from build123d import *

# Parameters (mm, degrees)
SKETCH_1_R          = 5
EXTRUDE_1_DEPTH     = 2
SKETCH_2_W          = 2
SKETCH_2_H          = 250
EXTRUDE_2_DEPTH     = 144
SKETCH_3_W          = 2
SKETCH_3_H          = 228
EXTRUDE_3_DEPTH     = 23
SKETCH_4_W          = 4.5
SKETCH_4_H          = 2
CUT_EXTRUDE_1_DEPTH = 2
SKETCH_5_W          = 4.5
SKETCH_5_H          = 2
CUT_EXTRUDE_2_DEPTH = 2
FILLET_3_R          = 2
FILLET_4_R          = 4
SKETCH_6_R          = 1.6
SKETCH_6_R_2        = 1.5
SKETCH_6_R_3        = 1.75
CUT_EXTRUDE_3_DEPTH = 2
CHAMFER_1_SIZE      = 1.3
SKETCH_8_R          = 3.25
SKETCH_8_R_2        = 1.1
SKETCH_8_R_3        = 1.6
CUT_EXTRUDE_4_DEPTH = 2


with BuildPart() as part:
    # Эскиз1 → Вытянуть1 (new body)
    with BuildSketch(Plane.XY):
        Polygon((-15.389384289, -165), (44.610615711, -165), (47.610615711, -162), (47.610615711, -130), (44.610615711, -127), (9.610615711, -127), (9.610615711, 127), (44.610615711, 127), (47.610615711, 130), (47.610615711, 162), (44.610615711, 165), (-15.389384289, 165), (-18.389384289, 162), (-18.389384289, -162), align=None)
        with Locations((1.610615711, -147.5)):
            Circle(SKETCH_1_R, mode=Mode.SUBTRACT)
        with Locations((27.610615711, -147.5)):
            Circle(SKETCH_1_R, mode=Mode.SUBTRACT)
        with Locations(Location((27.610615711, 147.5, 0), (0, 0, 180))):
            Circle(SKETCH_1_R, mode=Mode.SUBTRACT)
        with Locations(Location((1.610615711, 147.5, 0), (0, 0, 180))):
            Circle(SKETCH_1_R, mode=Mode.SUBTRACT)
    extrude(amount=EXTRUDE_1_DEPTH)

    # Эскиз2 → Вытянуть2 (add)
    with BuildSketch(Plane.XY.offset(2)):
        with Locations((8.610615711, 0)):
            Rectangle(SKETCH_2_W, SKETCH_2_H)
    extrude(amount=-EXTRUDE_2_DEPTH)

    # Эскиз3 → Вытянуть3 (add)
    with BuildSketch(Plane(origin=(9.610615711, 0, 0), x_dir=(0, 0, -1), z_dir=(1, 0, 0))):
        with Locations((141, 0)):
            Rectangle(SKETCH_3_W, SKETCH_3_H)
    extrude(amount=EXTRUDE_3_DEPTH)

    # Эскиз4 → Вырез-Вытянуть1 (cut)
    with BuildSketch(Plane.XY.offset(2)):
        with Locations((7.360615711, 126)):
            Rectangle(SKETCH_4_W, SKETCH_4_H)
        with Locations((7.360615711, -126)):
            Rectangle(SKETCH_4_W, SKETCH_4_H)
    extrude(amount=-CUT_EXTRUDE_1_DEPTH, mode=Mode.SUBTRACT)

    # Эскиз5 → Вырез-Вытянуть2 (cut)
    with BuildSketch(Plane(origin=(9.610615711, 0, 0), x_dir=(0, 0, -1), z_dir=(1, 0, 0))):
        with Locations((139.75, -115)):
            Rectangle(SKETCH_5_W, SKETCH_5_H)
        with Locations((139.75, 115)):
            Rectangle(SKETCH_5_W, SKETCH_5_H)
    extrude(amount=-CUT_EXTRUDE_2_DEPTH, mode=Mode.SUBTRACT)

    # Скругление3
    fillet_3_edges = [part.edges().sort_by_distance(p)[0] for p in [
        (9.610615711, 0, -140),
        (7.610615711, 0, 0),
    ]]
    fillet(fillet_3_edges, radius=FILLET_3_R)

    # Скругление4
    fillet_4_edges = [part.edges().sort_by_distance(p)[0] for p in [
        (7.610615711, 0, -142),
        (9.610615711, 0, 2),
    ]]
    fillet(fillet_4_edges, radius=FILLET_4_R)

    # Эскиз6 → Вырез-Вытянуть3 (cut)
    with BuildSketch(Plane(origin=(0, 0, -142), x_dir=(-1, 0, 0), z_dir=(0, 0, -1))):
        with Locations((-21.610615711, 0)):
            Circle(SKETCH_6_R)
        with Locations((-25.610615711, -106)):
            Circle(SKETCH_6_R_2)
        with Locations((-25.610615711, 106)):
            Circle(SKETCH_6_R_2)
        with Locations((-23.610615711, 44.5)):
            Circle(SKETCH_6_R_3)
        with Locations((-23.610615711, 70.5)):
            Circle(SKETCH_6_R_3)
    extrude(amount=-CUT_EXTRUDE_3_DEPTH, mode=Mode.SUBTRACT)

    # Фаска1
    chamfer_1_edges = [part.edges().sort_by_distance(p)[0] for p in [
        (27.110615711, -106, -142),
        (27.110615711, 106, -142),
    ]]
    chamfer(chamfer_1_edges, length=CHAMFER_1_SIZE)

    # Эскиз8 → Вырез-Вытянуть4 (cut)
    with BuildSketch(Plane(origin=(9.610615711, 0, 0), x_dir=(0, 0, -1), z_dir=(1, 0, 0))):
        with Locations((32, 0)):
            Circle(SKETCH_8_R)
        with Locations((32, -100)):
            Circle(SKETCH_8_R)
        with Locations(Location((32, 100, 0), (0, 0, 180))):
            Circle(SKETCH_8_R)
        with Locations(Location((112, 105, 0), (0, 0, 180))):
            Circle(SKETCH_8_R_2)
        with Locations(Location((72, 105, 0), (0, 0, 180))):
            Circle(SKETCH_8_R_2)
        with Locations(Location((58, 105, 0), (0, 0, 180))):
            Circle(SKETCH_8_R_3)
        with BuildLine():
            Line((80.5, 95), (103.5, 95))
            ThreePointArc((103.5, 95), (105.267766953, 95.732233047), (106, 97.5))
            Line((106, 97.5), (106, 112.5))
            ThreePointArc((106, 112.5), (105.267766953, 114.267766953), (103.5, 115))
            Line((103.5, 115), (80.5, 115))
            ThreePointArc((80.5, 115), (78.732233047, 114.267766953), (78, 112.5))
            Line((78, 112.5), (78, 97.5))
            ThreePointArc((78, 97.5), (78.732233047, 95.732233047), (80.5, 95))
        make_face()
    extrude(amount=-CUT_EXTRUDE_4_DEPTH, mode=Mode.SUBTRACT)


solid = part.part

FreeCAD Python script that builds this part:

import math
import FreeCAD as App
import Part
import Sketcher
from FreeCAD import Vector
Q = App.Units.Quantity


def edges_at(feature, points):
    """Names of the edges that pass closest to the given points."""
    edges = feature.Shape.Edges
    near = lambda p: min(range(len(edges)), key=lambda i: edges[i].distToShape(Part.Vertex(*p))[0])
    return sorted({f"Edge{near(p) + 1}" for p in points})


def add_polygon(sketch, points):
    """Adds a closed chain of lines whose ends are joined by coincident constraints."""
    first, n = sketch.GeometryCount, len(points)
    for a, b in zip(points, points[1:] + points[:1]):
        sketch.addGeometry(Part.LineSegment(App.Vector(*a, 0), App.Vector(*b, 0)), False)
    for i in range(n):
        sketch.addConstraint(Sketcher.Constraint("Coincident", first + i, 2, first + (i + 1) % n, 1))

doc = App.newDocument("Part")
body = doc.addObject("PartDesign::Body", "Body")

# Sketch on XY plane
sketch1 = body.newObject("Sketcher::SketchObject", "Sketch")
sketch1.AttachmentSupport = (doc.getObject("XY_Plane"), [""])
sketch1.MapMode = "FlatFace"
add_polygon(sketch1, [(-15.4, -165), (44.6, -165), (47.6, -162), (47.6, -130), (44.6, -127), (9.6, -127), (9.6, 127), (44.6, 127), (47.6, 130), (47.6, 162), (44.6, 165), (-15.4, 165), (-18.4, 162), (-18.4, -162)])  # lines 0-13
sketch1.addGeometry(Part.Circle(Vector(1.6, -147.5, 0), Vector(0, 0, 1), 5), False)  # 14
sketch1.addGeometry(Part.Circle(Vector(27.6, -147.5, 0), Vector(0, 0, 1), 5), False)  # 15
sketch1.addGeometry(Part.Circle(Vector(1.6, 147.5, 0), Vector(0, 0, 1), 5), False)  # 16
sketch1.addGeometry(Part.Circle(Vector(27.6, 147.5, 0), Vector(0, 0, 1), 5), False)  # 17
sketch1.addConstraint(Sketcher.Constraint("Horizontal", 0))
sketch1.addConstraint(Sketcher.Constraint("Vertical", 2))
sketch1.addConstraint(Sketcher.Constraint("Horizontal", 4))
sketch1.addConstraint(Sketcher.Constraint("Vertical", 5))
sketch1.addConstraint(Sketcher.Constraint("Horizontal", 6))
sketch1.addConstraint(Sketcher.Constraint("Vertical", 8))
sketch1.addConstraint(Sketcher.Constraint("Horizontal", 10))
sketch1.addConstraint(Sketcher.Constraint("Vertical", 12))
sketch1.addConstraint(Sketcher.Constraint("Equal", 14, 15))
sketch1.addConstraint(Sketcher.Constraint("Equal", 15, 16))
sketch1.addConstraint(Sketcher.Constraint("Equal", 16, 17))
sketch1.addConstraint(Sketcher.Constraint("Symmetric", 14, 3, 16, 3, -1))
sketch1.addConstraint(Sketcher.Constraint("Symmetric", 15, 3, 17, 3, -1))
sketch1.addConstraint(Sketcher.Constraint("Symmetric", 3, 2, 6, 2, -1))
sketch1.addConstraint(Sketcher.Constraint("Symmetric", 2, 2, 7, 2, -1))
sketch1.addConstraint(Sketcher.Constraint("Symmetric", 0, 2, 9, 2, -1))
sketch1.addConstraint(Sketcher.Constraint("Perpendicular", 1, 3))
sketch1.addConstraint(Sketcher.Constraint("Perpendicular", 3, 7))
sketch1.addConstraint(Sketcher.Constraint("Perpendicular", 7, 9))
sketch1.addConstraint(Sketcher.Constraint("Perpendicular", 9, 11))
sketch1.addConstraint(Sketcher.Constraint("Perpendicular", 11, 13))
sketch1.addConstraint(Sketcher.Constraint("Horizontal", 14, 3, 15, 3))
sketch1.addConstraint(Sketcher.Constraint("Horizontal", 8, 2, 11, 2))
sketch1.addConstraint(Sketcher.Constraint("Horizontal", 1, 2, 12, 2))
sketch1.addConstraint(Sketcher.Constraint("Vertical", 0, 2, 3, 2))
sketch1.addConstraint(Sketcher.Constraint("Diameter", 14, Q("10 mm")))
sketch1.addConstraint(Sketcher.Constraint("DistanceX", 0, 1, 0, 2, Q("60 mm")))
sketch1.addConstraint(Sketcher.Constraint("DistanceX", 4, 2, 4, 1, Q("35 mm")))
sketch1.addConstraint(Sketcher.Constraint("DistanceY", 2, 1, 2, 2, Q("32 mm")))
sketch1.addConstraint(Sketcher.Constraint("DistanceY", 5, 1, 5, 2, Q("254 mm")))
sketch1.addConstraint(Sketcher.Constraint("DistanceY", 12, 2, 12, 1, Q("324 mm")))
sketch1.addConstraint(Sketcher.Constraint("DistanceX", 14, 3, 15, 3, Q("26 mm")))
sketch1.addConstraint(Sketcher.Constraint("DistanceY", 14, 3, 16, 3, Q("295 mm")))
sketch1.addConstraint(Sketcher.Constraint("DistanceX", 15, 3, 0, 2, Q("17 mm")))
sketch1.addConstraint(Sketcher.Constraint("DistanceX", -1, 1, 14, 3, Q("1.610616 mm")))
pad1 = body.newObject("PartDesign::Pad", "Pad")
pad1.Profile = sketch1
pad1.Length = 2

# Sketch on XY plane
sketch2 = body.newObject("Sketcher::SketchObject", "Sketch001")
sketch2.AttachmentSupport = (doc.getObject("XY_Plane"), [""])
sketch2.MapMode = "FlatFace"
sketch2.AttachmentOffset = App.Placement(Vector(0, 0, 2), App.Rotation())
add_polygon(sketch2, [(7.6, 125), (7.6, -125), (9.6, -125), (9.6, 125)])  # lines 0-3
sketch2.addConstraint(Sketcher.Constraint("Vertical", 0))
sketch2.addConstraint(Sketcher.Constraint("Horizontal", 1))
sketch2.addConstraint(Sketcher.Constraint("Vertical", 2))
sketch2.addConstraint(Sketcher.Constraint("Horizontal", 3))
sketch2.addConstraint(Sketcher.Constraint("DistanceX", 1, 1, 1, 2, Q("2 mm")))
sketch2.addConstraint(Sketcher.Constraint("DistanceY", 0, 2, 0, 1, Q("250 mm")))
sketch2.addConstraint(Sketcher.Constraint("DistanceY", 0, 2, -1, 1, Q("125 mm")))
sketch2.addConstraint(Sketcher.Constraint("DistanceX", -1, 1, 0, 2, Q("7.610616 mm")))
pad2 = body.newObject("PartDesign::Pad", "Pad001")
pad2.Profile = sketch2
pad2.Length = 144
pad2.Reversed = True

# Sketch on YZ plane
sketch3 = body.newObject("Sketcher::SketchObject", "Sketch002")
sketch3.AttachmentSupport = (doc.getObject("YZ_Plane"), [""])
sketch3.MapMode = "FlatFace"
sketch3.AttachmentOffset = App.Placement(Vector(0, 0, 9.610616), App.Rotation())
add_polygon(sketch3, [(114, -140), (-114, -140), (-114, -142), (114, -142)])  # lines 0-3
sketch3.addConstraint(Sketcher.Constraint("Horizontal", 0))
sketch3.addConstraint(Sketcher.Constraint("Vertical", 1))
sketch3.addConstraint(Sketcher.Constraint("Horizontal", 2))
sketch3.addConstraint(Sketcher.Constraint("Vertical", 3))
sketch3.addConstraint(Sketcher.Constraint("DistanceX", 0, 2, 0, 1, Q("228 mm")))
sketch3.addConstraint(Sketcher.Constraint("DistanceY", 1, 2, 1, 1, Q("2 mm")))
sketch3.addConstraint(Sketcher.Constraint("DistanceX", 0, 2, -1, 1, Q("114 mm")))
sketch3.addConstraint(Sketcher.Constraint("DistanceY", 0, 2, -1, 1, Q("140 mm")))
pad3 = body.newObject("PartDesign::Pad", "Pad002")
pad3.Profile = sketch3
pad3.Length = 23

# Sketch on XY plane
sketch4 = body.newObject("Sketcher::SketchObject", "Sketch003")
sketch4.AttachmentSupport = (doc.getObject("XY_Plane"), [""])
sketch4.MapMode = "FlatFace"
sketch4.AttachmentOffset = App.Placement(Vector(0, 0, 2), App.Rotation())
add_polygon(sketch4, [(5.1, 127), (5.1, 125), (9.6, 125), (9.6, 127)])  # lines 0-3
add_polygon(sketch4, [(5.1, -125), (5.1, -127), (9.6, -127), (9.6, -125)])  # lines 4-7
sketch4.addConstraint(Sketcher.Constraint("Vertical", 0))
sketch4.addConstraint(Sketcher.Constraint("Horizontal", 1))
sketch4.addConstraint(Sketcher.Constraint("Vertical", 2))
sketch4.addConstraint(Sketcher.Constraint("Horizontal", 3))
sketch4.addConstraint(Sketcher.Constraint("Vertical", 4))
sketch4.addConstraint(Sketcher.Constraint("Horizontal", 5))
sketch4.addConstraint(Sketcher.Constraint("Vertical", 6))
sketch4.addConstraint(Sketcher.Constraint("Horizontal", 7))
sketch4.addConstraint(Sketcher.Constraint("Symmetric", 3, 2, 4, 2, -1))
sketch4.addConstraint(Sketcher.Constraint("Symmetric", 1, 2, 6, 2, -1))
sketch4.addConstraint(Sketcher.Constraint("DistanceY", 0, 2, 0, 1, Q("2 mm")))
sketch4.addConstraint(Sketcher.Constraint("DistanceX", 1, 1, 1, 2, Q("4.5 mm")))
sketch4.addConstraint(Sketcher.Constraint("DistanceY", -1, 1, 0, 2, Q("125 mm")))
sketch4.addConstraint(Sketcher.Constraint("DistanceX", -1, 1, 0, 2, Q("5.110616 mm")))
pocket1 = body.newObject("PartDesign::Pocket", "Pocket")
pocket1.Profile = sketch4
pocket1.Length = 2

# Sketch on YZ plane
sketch5 = body.newObject("Sketcher::SketchObject", "Sketch004")
sketch5.AttachmentSupport = (doc.getObject("YZ_Plane"), [""])
sketch5.MapMode = "FlatFace"
sketch5.AttachmentOffset = App.Placement(Vector(0, 0, 9.610616), App.Rotation())
add_polygon(sketch5, [(-114, -137.5), (-116, -137.5), (-116, -142), (-114, -142)])  # lines 0-3
add_polygon(sketch5, [(116, -137.5), (114, -137.5), (114, -142), (116, -142)])  # lines 4-7
sketch5.addConstraint(Sketcher.Constraint("Horizontal", 0))
sketch5.addConstraint(Sketcher.Constraint("Vertical", 1))
sketch5.addConstraint(Sketcher.Constraint("Horizontal", 2))
sketch5.addConstraint(Sketcher.Constraint("Vertical", 3))
sketch5.addConstraint(Sketcher.Constraint("Horizontal", 4))
sketch5.addConstraint(Sketcher.Constraint("Vertical", 5))
sketch5.addConstraint(Sketcher.Constraint("Horizontal", 6))
sketch5.addConstraint(Sketcher.Constraint("Vertical", 7))
sketch5.addConstraint(Sketcher.Constraint("Symmetric", 3, 2, 4, 2, -2))
sketch5.addConstraint(Sketcher.Constraint("Symmetric", 1, 2, 6, 2, -2))
sketch5.addConstraint(Sketcher.Constraint("DistanceX", 0, 2, 0, 1, Q("2 mm")))
sketch5.addConstraint(Sketcher.Constraint("DistanceY", 1, 2, 1, 1, Q("4.5 mm")))
sketch5.addConstraint(Sketcher.Constraint("DistanceX", 0, 2, -1, 1, Q("116 mm")))
sketch5.addConstraint(Sketcher.Constraint("DistanceY", 1, 2, -1, 1, Q("142 mm")))
pocket2 = body.newObject("PartDesign::Pocket", "Pocket001")
pocket2.Profile = sketch5
pocket2.Length = 2
doc.recompute()

fillet = body.newObject("PartDesign::Fillet", "Fillet")
fillet.Base = (pocket2, edges_at(pocket2, [(9.611, 0, -140), (7.611, 0, 0)]))
fillet.Radius = 2
doc.recompute()

fillet2 = body.newObject("PartDesign::Fillet", "Fillet001")
fillet2.Base = (fillet, edges_at(fillet, [(7.611, 0, -142), (9.611, 0, 2)]))
fillet2.Radius = 4

# Sketch on XY plane
sketch6 = body.newObject("Sketcher::SketchObject", "Sketch005")
sketch6.AttachmentSupport = (doc.getObject("XY_Plane"), [""])
sketch6.MapMode = "FlatFace"
sketch6.AttachmentOffset = App.Placement(Vector(0, 0, -142), App.Rotation())
sketch6.addGeometry(Part.Circle(Vector(21.6, 0, 0), Vector(0, 0, 1), 1.6), False)
sketch6.addGeometry(Part.Circle(Vector(25.6, -106, 0), Vector(0, 0, 1), 1.5), False)
sketch6.addGeometry(Part.Circle(Vector(25.6, 106, 0), Vector(0, 0, 1), 1.5), False)
sketch6.addGeometry(Part.Circle(Vector(23.6, 44.5, 0), Vector(0, 0, 1), 1.8), False)
sketch6.addGeometry(Part.Circle(Vector(23.6, 70.5, 0), Vector(0, 0, 1), 1.8), False)
sketch6.addConstraint(Sketcher.Constraint("Equal", 1, 2))
sketch6.addConstraint(Sketcher.Constraint("Equal", 3, 4))
sketch6.addConstraint(Sketcher.Constraint("Symmetric", 1, 3, 2, 3, -1))
sketch6.addConstraint(Sketcher.Constraint("PointOnObject", 0, 3, -1))
sketch6.addConstraint(Sketcher.Constraint("Vertical", 3, 3, 4, 3))
sketch6.addConstraint(Sketcher.Constraint("Diameter", 1, Q("3 mm")))
sketch6.addConstraint(Sketcher.Constraint("Diameter", 0, Q("3.2 mm")))
sketch6.addConstraint(Sketcher.Constraint("Diameter", 3, Q("3.5 mm")))
sketch6.addConstraint(Sketcher.Constraint("DistanceY", 1, 3, -1, 1, Q("106 mm")))
sketch6.addConstraint(Sketcher.Constraint("DistanceX", 0, 3, 1, 3, Q("4 mm")))
sketch6.addConstraint(Sketcher.Constraint("DistanceX", 0, 3, 3, 3, Q("2 mm")))
sketch6.addConstraint(Sketcher.Constraint("DistanceY", 3, 3, 4, 3, Q("26 mm")))
sketch6.addConstraint(Sketcher.Constraint("DistanceY", -1, 1, 3, 3, Q("44.5 mm")))
sketch6.addConstraint(Sketcher.Constraint("DistanceX", -1, 1, 0, 3, Q("21.610616 mm")))
pocket3 = body.newObject("PartDesign::Pocket", "Pocket002")
pocket3.Profile = sketch6
pocket3.Length = 2
pocket3.Reversed = True
doc.recompute()

chamfer = body.newObject("PartDesign::Chamfer", "Chamfer")
chamfer.Base = (pocket3, edges_at(pocket3, [(27.111, -106, -142), (27.111, 106, -142)]))
chamfer.Size = 1.3

# Sketch on YZ plane
sketch7 = body.newObject("Sketcher::SketchObject", "Sketch006")
sketch7.AttachmentSupport = (doc.getObject("YZ_Plane"), [""])
sketch7.MapMode = "FlatFace"
sketch7.AttachmentOffset = App.Placement(Vector(0, 0, 9.610616), App.Rotation())
sketch7.addGeometry(Part.Circle(Vector(0, -32, 0), Vector(0, 0, 1), 3.2), False)
sketch7.addGeometry(Part.Circle(Vector(-100, -32, 0), Vector(0, 0, 1), 3.2), False)
sketch7.addGeometry(Part.Circle(Vector(100, -32, 0), Vector(0, 0, 1), 3.2), False)
sketch7.addGeometry(Part.Circle(Vector(105, -112, 0), Vector(0, 0, 1), 1.1), False)
sketch7.addGeometry(Part.Circle(Vector(105, -72, 0), Vector(0, 0, 1), 1.1), False)
sketch7.addGeometry(Part.Circle(Vector(105, -58, 0), Vector(0, 0, 1), 1.6), False)
sketch7.addGeometry(Part.LineSegment(Vector(95, -80.5, 0), Vector(95, -103.5, 0)), False)
sketch7.addGeometry(Part.ArcOfCircle(Part.Circle(Vector(97.5, -103.5, 0), Vector(0, 0, 1), 2.5), math.radians(180), math.radians(270)), False)
sketch7.addGeometry(Part.LineSegment(Vector(97.5, -106, 0), Vector(112.5, -106, 0)), False)
sketch7.addGeometry(Part.ArcOfCircle(Part.Circle(Vector(112.5, -103.5, 0), Vector(0, 0, 1), 2.5), math.radians(-90), math.radians(0)), False)
sketch7.addGeometry(Part.LineSegment(Vector(115, -103.5, 0), Vector(115, -80.5, 0)), False)
sketch7.addGeometry(Part.ArcOfCircle(Part.Circle(Vector(112.5, -80.5, 0), Vector(0, 0, 1), 2.5), math.radians(0), math.radians(90)), False)
sketch7.addGeometry(Part.LineSegment(Vector(112.5, -78, 0), Vector(97.5, -78, 0)), False)
sketch7.addGeometry(Part.ArcOfCircle(Part.Circle(Vector(97.5, -80.5, 0), Vector(0, 0, 1), 2.5), math.radians(90), math.radians(180)), False)
sketch7.addConstraint(Sketcher.Constraint("Tangent", 6, 2, 7, 1))
sketch7.addConstraint(Sketcher.Constraint("Tangent", 7, 2, 8, 1))
sketch7.addConstraint(Sketcher.Constraint("Tangent", 8, 2, 9, 1))
sketch7.addConstraint(Sketcher.Constraint("Tangent", 9, 2, 10, 1))
sketch7.addConstraint(Sketcher.Constraint("Tangent", 10, 2, 11, 1))
sketch7.addConstraint(Sketcher.Constraint("Tangent", 11, 2, 12, 1))
sketch7.addConstraint(Sketcher.Constraint("Tangent", 12, 2, 13, 1))
sketch7.addConstraint(Sketcher.Constraint("Tangent", 13, 2, 6, 1))
sketch7.addConstraint(Sketcher.Constraint("Vertical", 6))
sketch7.addConstraint(Sketcher.Constraint("Horizontal", 8))
sketch7.addConstraint(Sketcher.Constraint("Vertical", 10))
sketch7.addConstraint(Sketcher.Constraint("Horizontal", 12))
sketch7.addConstraint(Sketcher.Constraint("Equal", 0, 1))
sketch7.addConstraint(Sketcher.Constraint("Equal", 1, 2))
sketch7.addConstraint(Sketcher.Constraint("Equal", 3, 4))
sketch7.addConstraint(Sketcher.Constraint("Equal", 7, 9))
sketch7.addConstraint(Sketcher.Constraint("Equal", 9, 11))
sketch7.addConstraint(Sketcher.Constraint("Equal", 11, 13))
sketch7.addConstraint(Sketcher.Constraint("Symmetric", 1, 3, 2, 3, -2))
sketch7.addConstraint(Sketcher.Constraint("PointOnObject", 0, 3, -2))
sketch7.addConstraint(Sketcher.Constraint("Horizontal", 0, 3, 1, 3))
sketch7.addConstraint(Sketcher.Constraint("Vertical", 3, 3, 4, 3))
sketch7.addConstraint(Sketcher.Constraint("Vertical", 4, 3, 5, 3))
sketch7.addConstraint(Sketcher.Constraint("Diameter", 0, Q("6.5 mm")))
sketch7.addConstraint(Sketcher.Constraint("Diameter", 3, Q("2.2 mm")))
sketch7.addConstraint(Sketcher.Constraint("Diameter", 5, Q("3.2 mm")))
sketch7.addConstraint(Sketcher.Constraint("Radius", 7, Q("2.5 mm")))
sketch7.addConstraint(Sketcher.Constraint("DistanceX", 8, 1, 8, 2, Q("15 mm")))
sketch7.addConstraint(Sketcher.Constraint("DistanceY", 6, 2, 6, 1, Q("23 mm")))
sketch7.addConstraint(Sketcher.Constraint("DistanceY", 0, 3, -1, 1, Q("32 mm")))
sketch7.addConstraint(Sketcher.Constraint("DistanceX", 1, 3, -1, 1, Q("100 mm")))
sketch7.addConstraint(Sketcher.Constraint("DistanceX", -1, 1, 3, 3, Q("105 mm")))
sketch7.addConstraint(Sketcher.Constraint("DistanceY", 3, 3, -1, 1, Q("112 mm")))
sketch7.addConstraint(Sketcher.Constraint("DistanceY", 4, 3, -1, 1, Q("72 mm")))
sketch7.addConstraint(Sketcher.Constraint("DistanceY", 5, 3, -1, 1, Q("58 mm")))
sketch7.addConstraint(Sketcher.Constraint("DistanceX", -1, 1, 6, 2, Q("95 mm")))
sketch7.addConstraint(Sketcher.Constraint("DistanceY", 7, 2, -1, 1, Q("106 mm")))
pocket4 = body.newObject("PartDesign::Pocket", "Pocket003")
pocket4.Profile = sketch7
pocket4.Length = 2

doc.recompute()
